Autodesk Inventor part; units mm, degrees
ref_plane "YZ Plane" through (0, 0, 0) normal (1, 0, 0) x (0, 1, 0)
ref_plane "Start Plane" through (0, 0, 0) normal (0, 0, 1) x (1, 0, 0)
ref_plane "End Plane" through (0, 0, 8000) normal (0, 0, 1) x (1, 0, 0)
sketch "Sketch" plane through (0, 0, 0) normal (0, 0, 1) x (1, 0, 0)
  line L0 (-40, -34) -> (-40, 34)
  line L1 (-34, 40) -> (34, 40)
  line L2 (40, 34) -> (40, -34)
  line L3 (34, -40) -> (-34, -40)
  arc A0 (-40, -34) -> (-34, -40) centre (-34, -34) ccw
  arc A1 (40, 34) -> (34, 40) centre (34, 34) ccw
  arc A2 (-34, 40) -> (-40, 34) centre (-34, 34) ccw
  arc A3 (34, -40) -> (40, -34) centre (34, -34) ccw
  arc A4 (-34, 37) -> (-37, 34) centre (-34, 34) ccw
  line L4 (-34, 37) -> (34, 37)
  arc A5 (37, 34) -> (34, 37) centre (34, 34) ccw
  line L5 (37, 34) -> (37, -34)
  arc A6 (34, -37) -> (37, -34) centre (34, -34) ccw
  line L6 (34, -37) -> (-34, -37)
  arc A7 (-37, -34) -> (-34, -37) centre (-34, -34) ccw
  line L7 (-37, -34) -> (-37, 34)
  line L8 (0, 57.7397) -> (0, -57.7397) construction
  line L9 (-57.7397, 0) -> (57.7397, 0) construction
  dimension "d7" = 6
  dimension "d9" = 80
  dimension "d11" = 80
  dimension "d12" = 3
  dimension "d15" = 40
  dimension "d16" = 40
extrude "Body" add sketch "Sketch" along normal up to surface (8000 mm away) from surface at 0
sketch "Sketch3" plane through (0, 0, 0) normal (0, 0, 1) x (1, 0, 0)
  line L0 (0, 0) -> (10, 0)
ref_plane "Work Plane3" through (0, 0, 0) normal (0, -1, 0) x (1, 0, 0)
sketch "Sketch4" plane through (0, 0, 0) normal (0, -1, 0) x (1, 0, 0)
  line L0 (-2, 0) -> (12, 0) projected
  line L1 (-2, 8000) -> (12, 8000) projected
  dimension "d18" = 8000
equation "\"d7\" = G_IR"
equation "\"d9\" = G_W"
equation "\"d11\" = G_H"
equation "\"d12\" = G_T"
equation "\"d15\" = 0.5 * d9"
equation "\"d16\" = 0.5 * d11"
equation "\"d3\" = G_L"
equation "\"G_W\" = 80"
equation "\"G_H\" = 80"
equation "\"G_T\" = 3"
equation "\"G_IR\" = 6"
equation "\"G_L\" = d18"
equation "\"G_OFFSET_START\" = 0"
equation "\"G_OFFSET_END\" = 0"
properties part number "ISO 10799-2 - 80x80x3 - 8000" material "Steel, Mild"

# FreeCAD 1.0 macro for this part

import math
import FreeCAD as App
import Part
import Sketcher
Q = App.Units.Quantity

doc = App.newDocument("Part")
body = doc.addObject("PartDesign::Body", "Body")

# Sketch on XY plane
sketch1 = body.newObject("Sketcher::SketchObject", "Sketch")
sketch1.AttachmentSupport = (doc.getObject("XY_Plane"), [""])
sketch1.MapMode = "FlatFace"
sketch1.addGeometry([
    Part.LineSegment(App.Vector(-40, 34, 0), App.Vector(-40, -34, 0)),  # 0
    Part.ArcOfCircle(Part.Circle(App.Vector(-34, -34, 0), App.Vector(0, 0, 1), 6), math.radians(180), math.radians(270)),  # 1
    Part.LineSegment(App.Vector(-34, -40, 0), App.Vector(34, -40, 0)),  # 2
    Part.ArcOfCircle(Part.Circle(App.Vector(34, -34, 0), App.Vector(0, 0, 1), 6), math.radians(-90), math.radians(0)),  # 3
    Part.LineSegment(App.Vector(40, -34, 0), App.Vector(40, 34, 0)),  # 4
    Part.ArcOfCircle(Part.Circle(App.Vector(34, 34, 0), App.Vector(0, 0, 1), 6), math.radians(0), math.radians(90)),  # 5
    Part.LineSegment(App.Vector(34, 40, 0), App.Vector(-34, 40, 0)),  # 6
    Part.ArcOfCircle(Part.Circle(App.Vector(-34, 34, 0), App.Vector(0, 0, 1), 6), math.radians(90), math.radians(180)),  # 7
    Part.ArcOfCircle(Part.Circle(App.Vector(-34, 34, 0), App.Vector(0, 0, 1), 3), math.radians(90), math.radians(180)),  # 8
    Part.LineSegment(App.Vector(-34, 37, 0), App.Vector(34, 37, 0)),  # 9
    Part.ArcOfCircle(Part.Circle(App.Vector(34, 34, 0), App.Vector(0, 0, 1), 3), math.radians(0), math.radians(90)),  # 10
    Part.LineSegment(App.Vector(37, 34, 0), App.Vector(37, -34, 0)),  # 11
    Part.ArcOfCircle(Part.Circle(App.Vector(34, -34, 0), App.Vector(0, 0, 1), 3), math.radians(-90), math.radians(0)),  # 12
    Part.LineSegment(App.Vector(34, -37, 0), App.Vector(-34, -37, 0)),  # 13
    Part.ArcOfCircle(Part.Circle(App.Vector(-34, -34, 0), App.Vector(0, 0, 1), 3), math.radians(180), math.radians(270)),  # 14
    Part.LineSegment(App.Vector(-37, -34, 0), App.Vector(-37, 34, 0)),  # 15
], False)
sketch1.addConstraint([
    Sketcher.Constraint("Tangent", 0, 2, 1, 1),
    Sketcher.Constraint("Tangent", 1, 2, 2, 1),
    Sketcher.Constraint("Tangent", 2, 2, 3, 1),
    Sketcher.Constraint("Tangent", 3, 2, 4, 1),
    Sketcher.Constraint("Tangent", 4, 2, 5, 1),
    Sketcher.Constraint("Tangent", 5, 2, 6, 1),
    Sketcher.Constraint("Tangent", 6, 2, 7, 1),
    Sketcher.Constraint("Tangent", 7, 2, 0, 1),
    Sketcher.Constraint("Tangent", 8, 1, 9, 1),
    Sketcher.Constraint("Tangent", 9, 2, 10, 2),
    Sketcher.Constraint("Tangent", 10, 1, 11, 1),
    Sketcher.Constraint("Tangent", 11, 2, 12, 2),
    Sketcher.Constraint("Tangent", 12, 1, 13, 1),
    Sketcher.Constraint("Tangent", 13, 2, 14, 2),
    Sketcher.Constraint("Tangent", 14, 1, 15, 1),
    Sketcher.Constraint("Tangent", 15, 2, 8, 2),
    Sketcher.Constraint("Vertical", 0),
    Sketcher.Constraint("Horizontal", 2),
    Sketcher.Constraint("Vertical", 4),
    Sketcher.Constraint("Horizontal", 6),
    Sketcher.Constraint("Horizontal", 9),
    Sketcher.Constraint("Vertical", 11),
    Sketcher.Constraint("Horizontal", 13),
    Sketcher.Constraint("Vertical", 15),
    Sketcher.Constraint("Coincident", 8, 3, 7, 3),
    Sketcher.Constraint("Coincident", 10, 3, 5, 3),
    Sketcher.Constraint("Coincident", 12, 3, 3, 3),
    Sketcher.Constraint("Equal", 1, 3),
    Sketcher.Constraint("Equal", 3, 5),
    Sketcher.Constraint("Equal", 5, 7),
    Sketcher.Constraint("Equal", 12, 14),
    Sketcher.Constraint("Symmetric", 1, 3, 5, 3, -1, 1),
    Sketcher.Constraint("Equal", 13, 0),
    Sketcher.Constraint("Radius", 1, Q("6 mm")),
    Sketcher.Constraint("Radius", 8, Q("3 mm")),
    Sketcher.Constraint("DistanceX", 0, 2, -1, 1, Q("40 mm")),
])
pad1 = body.newObject("PartDesign::Pad", "Pad")
pad1.Profile = sketch1
pad1.Length = 8000

doc.recompute()
